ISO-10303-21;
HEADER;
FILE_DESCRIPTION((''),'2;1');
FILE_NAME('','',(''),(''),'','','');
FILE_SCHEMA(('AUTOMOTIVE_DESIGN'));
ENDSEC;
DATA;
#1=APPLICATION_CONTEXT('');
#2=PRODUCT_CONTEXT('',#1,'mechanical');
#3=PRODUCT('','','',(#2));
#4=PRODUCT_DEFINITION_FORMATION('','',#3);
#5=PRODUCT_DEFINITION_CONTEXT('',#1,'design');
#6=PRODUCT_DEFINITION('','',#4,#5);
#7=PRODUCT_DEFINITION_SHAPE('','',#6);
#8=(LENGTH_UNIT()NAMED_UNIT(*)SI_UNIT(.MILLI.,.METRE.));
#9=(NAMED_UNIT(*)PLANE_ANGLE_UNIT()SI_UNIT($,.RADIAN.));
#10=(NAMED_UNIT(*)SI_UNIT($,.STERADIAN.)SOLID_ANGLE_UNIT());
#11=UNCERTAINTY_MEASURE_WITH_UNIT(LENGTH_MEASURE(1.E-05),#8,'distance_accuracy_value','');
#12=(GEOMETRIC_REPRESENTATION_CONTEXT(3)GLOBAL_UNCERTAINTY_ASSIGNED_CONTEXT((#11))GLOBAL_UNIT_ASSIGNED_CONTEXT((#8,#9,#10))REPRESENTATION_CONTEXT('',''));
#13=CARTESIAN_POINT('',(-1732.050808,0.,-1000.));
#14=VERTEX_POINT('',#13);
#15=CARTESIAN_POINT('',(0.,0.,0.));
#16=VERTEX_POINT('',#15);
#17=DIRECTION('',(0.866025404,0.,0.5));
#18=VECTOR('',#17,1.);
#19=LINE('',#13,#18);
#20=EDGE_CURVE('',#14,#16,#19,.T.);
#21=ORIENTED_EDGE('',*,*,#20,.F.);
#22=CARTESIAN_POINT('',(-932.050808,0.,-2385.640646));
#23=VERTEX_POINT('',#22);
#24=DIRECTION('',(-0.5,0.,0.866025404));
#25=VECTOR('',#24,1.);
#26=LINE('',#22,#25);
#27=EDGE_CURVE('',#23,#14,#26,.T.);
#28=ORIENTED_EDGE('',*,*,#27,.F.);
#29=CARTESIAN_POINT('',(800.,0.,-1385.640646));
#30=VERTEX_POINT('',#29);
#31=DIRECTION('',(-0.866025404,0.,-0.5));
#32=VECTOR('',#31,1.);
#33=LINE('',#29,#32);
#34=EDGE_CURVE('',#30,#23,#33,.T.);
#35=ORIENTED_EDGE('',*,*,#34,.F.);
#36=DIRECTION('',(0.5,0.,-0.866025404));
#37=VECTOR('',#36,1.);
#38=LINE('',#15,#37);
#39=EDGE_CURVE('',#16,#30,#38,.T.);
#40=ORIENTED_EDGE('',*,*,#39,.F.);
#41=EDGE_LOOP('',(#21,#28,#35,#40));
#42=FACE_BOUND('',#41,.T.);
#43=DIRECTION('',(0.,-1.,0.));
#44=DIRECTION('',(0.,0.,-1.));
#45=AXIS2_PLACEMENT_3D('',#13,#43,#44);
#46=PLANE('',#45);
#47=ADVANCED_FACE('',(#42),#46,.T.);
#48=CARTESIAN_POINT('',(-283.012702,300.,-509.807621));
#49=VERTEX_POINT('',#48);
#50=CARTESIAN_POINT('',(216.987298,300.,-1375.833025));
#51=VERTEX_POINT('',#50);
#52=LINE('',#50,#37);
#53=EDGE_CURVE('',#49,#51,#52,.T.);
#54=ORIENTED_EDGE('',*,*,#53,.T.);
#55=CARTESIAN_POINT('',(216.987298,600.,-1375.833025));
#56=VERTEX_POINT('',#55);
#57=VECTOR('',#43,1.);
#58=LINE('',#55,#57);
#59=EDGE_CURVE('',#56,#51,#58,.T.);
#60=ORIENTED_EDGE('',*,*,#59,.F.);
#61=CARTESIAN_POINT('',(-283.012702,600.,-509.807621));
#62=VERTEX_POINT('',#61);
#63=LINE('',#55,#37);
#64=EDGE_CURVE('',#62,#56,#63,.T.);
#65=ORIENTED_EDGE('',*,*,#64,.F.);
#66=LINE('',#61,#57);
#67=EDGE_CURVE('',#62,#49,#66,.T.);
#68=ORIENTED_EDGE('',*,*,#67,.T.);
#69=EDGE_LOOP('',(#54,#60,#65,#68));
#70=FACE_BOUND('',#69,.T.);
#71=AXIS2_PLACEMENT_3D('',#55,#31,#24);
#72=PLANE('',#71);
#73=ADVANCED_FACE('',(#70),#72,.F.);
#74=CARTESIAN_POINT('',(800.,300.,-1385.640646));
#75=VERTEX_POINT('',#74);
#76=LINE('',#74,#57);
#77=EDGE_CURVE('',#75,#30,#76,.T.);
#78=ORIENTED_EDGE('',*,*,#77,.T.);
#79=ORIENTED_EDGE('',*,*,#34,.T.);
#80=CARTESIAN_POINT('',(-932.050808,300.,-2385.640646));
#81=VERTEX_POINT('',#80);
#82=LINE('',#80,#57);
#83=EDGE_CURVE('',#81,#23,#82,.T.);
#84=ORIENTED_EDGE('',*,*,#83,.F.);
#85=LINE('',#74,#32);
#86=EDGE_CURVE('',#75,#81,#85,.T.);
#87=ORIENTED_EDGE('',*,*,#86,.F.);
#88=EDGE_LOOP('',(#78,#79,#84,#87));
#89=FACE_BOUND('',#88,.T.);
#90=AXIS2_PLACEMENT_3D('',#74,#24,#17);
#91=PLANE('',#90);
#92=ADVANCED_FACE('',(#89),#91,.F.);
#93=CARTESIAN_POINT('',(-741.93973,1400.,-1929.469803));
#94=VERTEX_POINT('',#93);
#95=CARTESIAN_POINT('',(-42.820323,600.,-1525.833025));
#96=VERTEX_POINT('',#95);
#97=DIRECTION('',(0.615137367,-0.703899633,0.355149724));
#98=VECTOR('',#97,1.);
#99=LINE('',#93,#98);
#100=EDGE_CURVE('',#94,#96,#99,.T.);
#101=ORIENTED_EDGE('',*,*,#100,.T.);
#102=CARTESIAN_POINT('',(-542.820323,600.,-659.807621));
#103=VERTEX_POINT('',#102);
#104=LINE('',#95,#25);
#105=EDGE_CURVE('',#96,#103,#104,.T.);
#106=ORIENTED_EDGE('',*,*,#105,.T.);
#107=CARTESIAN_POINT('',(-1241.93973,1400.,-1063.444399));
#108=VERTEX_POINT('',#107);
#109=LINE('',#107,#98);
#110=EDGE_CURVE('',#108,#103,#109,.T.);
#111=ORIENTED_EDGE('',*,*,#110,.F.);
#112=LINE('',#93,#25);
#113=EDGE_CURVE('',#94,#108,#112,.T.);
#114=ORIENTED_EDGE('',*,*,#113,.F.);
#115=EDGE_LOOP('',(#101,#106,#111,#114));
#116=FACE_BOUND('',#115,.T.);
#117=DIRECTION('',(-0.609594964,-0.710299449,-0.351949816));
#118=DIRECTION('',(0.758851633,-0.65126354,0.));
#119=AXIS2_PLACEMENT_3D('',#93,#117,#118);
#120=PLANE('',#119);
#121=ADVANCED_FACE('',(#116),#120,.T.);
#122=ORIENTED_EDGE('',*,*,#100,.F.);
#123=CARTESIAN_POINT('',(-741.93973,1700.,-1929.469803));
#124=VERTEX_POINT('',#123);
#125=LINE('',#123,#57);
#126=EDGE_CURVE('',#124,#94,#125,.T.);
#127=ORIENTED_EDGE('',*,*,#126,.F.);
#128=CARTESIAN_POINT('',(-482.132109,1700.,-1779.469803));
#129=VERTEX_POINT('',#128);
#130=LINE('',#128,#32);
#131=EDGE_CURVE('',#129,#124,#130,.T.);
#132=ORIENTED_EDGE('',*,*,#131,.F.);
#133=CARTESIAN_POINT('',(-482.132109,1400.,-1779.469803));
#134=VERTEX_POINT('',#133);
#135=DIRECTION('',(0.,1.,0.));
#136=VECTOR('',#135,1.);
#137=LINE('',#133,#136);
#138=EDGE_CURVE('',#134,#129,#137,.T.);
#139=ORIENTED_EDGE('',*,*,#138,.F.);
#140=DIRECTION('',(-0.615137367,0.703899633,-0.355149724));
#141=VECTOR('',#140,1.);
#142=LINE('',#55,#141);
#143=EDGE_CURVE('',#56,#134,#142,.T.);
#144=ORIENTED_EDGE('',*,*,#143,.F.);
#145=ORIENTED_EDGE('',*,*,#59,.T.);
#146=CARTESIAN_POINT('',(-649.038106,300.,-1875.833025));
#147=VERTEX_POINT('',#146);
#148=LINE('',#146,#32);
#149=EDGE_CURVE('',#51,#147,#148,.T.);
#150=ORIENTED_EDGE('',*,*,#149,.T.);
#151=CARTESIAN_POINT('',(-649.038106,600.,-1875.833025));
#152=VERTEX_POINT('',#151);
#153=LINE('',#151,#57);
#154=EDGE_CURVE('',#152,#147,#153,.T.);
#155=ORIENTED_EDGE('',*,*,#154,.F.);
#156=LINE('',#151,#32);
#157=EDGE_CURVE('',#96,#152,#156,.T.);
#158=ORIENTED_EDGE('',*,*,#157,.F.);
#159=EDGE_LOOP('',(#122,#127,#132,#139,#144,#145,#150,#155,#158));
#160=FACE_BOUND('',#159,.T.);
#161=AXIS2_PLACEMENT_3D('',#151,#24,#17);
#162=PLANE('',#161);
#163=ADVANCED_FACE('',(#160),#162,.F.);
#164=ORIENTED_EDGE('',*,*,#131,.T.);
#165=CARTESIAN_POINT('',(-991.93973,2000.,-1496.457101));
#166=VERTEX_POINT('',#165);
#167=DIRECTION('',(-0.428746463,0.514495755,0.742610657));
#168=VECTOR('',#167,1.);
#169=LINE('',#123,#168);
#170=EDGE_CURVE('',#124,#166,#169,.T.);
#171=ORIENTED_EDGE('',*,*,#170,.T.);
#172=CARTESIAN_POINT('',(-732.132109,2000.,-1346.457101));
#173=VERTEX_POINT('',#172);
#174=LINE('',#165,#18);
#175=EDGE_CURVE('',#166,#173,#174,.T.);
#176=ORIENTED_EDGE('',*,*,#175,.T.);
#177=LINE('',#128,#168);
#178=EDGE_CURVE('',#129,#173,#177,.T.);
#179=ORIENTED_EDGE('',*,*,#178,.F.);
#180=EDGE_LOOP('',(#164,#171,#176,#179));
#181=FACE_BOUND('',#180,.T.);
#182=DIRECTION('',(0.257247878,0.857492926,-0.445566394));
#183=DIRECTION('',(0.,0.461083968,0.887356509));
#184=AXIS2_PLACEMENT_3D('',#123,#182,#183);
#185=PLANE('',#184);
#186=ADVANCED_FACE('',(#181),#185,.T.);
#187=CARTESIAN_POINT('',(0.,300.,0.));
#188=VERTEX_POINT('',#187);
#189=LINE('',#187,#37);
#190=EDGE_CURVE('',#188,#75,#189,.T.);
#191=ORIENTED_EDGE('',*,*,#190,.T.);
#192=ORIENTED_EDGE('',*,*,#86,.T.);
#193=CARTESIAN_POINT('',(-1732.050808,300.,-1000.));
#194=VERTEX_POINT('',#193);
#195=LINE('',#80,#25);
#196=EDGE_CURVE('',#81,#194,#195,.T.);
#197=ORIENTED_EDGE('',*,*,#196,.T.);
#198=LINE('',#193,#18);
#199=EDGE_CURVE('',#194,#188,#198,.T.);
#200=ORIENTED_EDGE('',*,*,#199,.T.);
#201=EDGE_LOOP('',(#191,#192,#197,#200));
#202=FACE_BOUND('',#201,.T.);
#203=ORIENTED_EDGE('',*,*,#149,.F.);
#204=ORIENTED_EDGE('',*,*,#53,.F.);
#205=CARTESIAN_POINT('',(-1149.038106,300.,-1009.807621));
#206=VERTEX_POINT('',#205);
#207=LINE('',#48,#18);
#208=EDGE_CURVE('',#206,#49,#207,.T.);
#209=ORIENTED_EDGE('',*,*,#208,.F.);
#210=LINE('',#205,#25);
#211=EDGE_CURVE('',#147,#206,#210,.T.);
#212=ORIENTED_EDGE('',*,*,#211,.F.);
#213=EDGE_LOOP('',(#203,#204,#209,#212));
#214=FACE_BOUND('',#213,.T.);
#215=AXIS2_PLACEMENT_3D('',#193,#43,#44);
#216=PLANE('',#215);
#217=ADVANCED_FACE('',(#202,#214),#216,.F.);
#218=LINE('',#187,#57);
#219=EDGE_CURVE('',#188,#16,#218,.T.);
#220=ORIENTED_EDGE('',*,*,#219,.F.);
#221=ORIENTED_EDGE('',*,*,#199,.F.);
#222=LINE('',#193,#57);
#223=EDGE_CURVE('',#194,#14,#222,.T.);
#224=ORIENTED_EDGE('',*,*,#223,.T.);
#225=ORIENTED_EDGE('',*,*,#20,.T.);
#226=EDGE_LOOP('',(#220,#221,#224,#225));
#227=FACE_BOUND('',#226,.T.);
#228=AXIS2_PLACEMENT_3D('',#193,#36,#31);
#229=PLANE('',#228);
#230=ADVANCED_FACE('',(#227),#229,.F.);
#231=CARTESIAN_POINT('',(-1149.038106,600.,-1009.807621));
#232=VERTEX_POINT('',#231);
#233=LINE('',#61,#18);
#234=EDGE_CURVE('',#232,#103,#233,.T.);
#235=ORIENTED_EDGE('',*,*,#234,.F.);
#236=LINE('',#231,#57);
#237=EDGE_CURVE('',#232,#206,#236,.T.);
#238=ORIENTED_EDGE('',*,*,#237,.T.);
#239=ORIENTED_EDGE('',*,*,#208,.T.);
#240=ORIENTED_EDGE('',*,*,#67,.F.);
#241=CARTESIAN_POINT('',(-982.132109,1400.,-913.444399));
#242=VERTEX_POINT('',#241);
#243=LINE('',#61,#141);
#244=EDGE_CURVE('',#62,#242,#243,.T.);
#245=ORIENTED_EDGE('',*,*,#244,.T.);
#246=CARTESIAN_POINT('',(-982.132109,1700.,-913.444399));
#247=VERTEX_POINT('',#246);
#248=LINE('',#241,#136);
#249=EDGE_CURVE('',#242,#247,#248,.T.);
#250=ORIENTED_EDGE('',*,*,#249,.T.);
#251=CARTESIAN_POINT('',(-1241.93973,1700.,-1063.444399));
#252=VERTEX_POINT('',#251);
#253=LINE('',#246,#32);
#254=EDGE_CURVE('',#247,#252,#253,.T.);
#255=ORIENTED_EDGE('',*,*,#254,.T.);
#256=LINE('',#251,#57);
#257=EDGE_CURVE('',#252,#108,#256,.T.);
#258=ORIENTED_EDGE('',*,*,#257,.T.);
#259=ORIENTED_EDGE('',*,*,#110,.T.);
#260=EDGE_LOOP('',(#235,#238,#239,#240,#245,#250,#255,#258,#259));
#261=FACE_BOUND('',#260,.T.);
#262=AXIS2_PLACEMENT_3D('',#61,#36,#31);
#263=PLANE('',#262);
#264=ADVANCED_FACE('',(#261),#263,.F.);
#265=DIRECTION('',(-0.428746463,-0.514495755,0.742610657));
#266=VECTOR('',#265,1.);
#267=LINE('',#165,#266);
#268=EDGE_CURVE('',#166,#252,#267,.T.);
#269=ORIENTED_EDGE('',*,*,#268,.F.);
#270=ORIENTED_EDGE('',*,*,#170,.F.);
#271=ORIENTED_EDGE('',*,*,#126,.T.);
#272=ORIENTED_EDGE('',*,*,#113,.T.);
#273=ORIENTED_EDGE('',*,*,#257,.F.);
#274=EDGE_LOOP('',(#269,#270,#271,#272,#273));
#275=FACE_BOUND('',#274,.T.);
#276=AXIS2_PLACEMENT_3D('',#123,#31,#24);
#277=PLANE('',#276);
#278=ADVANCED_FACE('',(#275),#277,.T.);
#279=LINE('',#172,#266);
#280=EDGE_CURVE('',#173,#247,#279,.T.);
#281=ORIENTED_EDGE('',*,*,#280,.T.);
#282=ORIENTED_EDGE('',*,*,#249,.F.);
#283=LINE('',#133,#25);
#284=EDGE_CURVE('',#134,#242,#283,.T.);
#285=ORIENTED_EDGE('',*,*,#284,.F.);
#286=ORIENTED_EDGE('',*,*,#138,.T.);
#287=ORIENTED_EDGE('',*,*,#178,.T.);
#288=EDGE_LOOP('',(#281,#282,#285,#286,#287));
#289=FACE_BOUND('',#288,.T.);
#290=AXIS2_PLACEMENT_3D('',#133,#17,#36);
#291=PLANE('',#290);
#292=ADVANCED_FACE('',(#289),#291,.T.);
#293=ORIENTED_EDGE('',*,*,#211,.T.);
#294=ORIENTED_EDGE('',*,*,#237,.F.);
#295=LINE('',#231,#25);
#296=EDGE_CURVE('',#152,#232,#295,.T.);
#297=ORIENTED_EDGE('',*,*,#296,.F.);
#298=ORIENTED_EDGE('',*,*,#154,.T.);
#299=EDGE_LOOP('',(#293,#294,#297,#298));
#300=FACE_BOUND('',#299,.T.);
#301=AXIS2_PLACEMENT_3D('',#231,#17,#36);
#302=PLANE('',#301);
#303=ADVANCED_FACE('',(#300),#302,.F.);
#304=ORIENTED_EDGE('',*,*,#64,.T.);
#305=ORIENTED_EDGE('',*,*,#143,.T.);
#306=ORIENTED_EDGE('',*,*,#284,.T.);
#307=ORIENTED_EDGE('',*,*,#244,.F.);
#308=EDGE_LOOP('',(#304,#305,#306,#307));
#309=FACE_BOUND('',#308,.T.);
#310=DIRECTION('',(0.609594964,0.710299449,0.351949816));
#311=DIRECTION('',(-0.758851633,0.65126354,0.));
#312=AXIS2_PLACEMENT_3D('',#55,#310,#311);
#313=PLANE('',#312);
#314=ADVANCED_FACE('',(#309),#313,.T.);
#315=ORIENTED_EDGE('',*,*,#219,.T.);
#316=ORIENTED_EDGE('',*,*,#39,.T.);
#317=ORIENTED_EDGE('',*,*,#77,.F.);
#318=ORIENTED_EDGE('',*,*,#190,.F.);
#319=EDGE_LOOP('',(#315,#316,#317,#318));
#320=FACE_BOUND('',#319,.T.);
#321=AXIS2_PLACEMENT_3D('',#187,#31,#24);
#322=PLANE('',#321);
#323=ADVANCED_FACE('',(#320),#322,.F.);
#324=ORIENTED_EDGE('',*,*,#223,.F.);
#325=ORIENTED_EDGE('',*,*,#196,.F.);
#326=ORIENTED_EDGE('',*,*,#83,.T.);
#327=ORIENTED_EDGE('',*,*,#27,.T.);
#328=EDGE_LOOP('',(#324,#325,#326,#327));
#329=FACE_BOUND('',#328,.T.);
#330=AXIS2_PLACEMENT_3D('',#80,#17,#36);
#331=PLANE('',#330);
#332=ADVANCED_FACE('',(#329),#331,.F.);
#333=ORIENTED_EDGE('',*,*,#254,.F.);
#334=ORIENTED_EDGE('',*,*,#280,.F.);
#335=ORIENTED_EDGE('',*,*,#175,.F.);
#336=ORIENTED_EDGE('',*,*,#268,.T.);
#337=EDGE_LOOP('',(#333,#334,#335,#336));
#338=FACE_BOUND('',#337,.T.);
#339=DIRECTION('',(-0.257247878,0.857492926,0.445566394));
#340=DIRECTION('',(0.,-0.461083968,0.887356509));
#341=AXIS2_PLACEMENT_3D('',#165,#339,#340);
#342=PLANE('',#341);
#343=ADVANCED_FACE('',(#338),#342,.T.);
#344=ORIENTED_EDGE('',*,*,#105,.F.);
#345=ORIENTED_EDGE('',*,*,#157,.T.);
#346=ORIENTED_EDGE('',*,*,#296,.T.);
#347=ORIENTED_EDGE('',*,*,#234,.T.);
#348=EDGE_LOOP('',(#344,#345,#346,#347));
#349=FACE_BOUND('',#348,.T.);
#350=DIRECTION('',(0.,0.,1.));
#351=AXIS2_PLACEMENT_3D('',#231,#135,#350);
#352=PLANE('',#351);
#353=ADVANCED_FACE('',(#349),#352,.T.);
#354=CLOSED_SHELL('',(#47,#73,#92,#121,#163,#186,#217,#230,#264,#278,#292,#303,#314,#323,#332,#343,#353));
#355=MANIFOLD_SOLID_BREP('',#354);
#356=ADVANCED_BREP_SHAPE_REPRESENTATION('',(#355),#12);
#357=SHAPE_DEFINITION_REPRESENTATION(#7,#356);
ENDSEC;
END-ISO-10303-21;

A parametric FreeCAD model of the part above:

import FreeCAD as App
import Part
import Sketcher

V = App.Vector
Q = App.Units.Quantity


def add_polygon(sketch, points):
    """Adds a closed chain of lines whose ends are joined by coincident constraints."""
    first, n = sketch.GeometryCount, len(points)
    for a, b in zip(points, points[1:] + points[:1]):
        sketch.addGeometry(Part.LineSegment(App.Vector(*a, 0), App.Vector(*b, 0)), False)
    for i in range(n):
        sketch.addConstraint(Sketcher.Constraint("Coincident", first + i, 2, first + (i + 1) % n, 1))

doc = App.newDocument("Part")
params = doc.addObject("Spreadsheet::Sheet", "Params")
for row, (alias, value) in enumerate([
    ("sketch1_length", "1600 mm"),
    ("sketch1_length2", "2000 mm"),
    ("pad1_length", "300 mm"),
    ("sketch2_length", "1000 mm"),
    ("pad2_length", "300 mm"),
    ("sketch3_width", "300 mm"),
    ("pad3_length", "1000 mm"),
    ("sketch4_width", "1000 mm"),
    ("pad4_length", "300 mm"),
], start=1):
    params.set(f"A{row}", alias)
    params.set(f"B{row}", "=" + value)
    params.setAlias(f"B{row}", alias)

body = doc.addObject("PartDesign::Body", "Body")

# Sketch on XZ plane
sketch1 = doc.addObject("Sketcher::SketchObject", "Sketch")
body.addObject(sketch1)
sketch1.AttachmentSupport = (doc.XZ_Plane, [""])
sketch1.MapMode = "FlatFace"
add_polygon(sketch1, [(0, 0), (800, -1386), (-932, -2386), (-1732, -1000)])  # lines 0-3
sketch1.addConstraint([
    Sketcher.Constraint("Coincident", 3, 2, -1, 1),
    Sketcher.Constraint("Perpendicular", 0, 1),
    Sketcher.Constraint("Perpendicular", 1, 2),
    Sketcher.Constraint("Perpendicular", 2, 3),
    Sketcher.Constraint("Angle", 0, Q("-60 deg")),
    Sketcher.Constraint("Distance", 0, 1600.0),
    Sketcher.Constraint("Distance", 1, 2000.0),
])
sketch1.setExpression("Constraints[9]", "Params.sketch1_length")
sketch1.setExpression("Constraints[10]", "Params.sketch1_length2")
pad1 = doc.addObject("PartDesign::Pad", "Pad")
body.addObject(pad1)
pad1.Profile = sketch1
pad1.setExpression("Length", "Params.pad1_length")
pad1.Reversed = True

# Sketch on XZ plane
sketch2 = doc.addObject("Sketcher::SketchObject", "Sketch001")
body.addObject(sketch2)
sketch2.AttachmentSupport = (doc.XZ_Plane, [""])
sketch2.MapMode = "FlatFace"
sketch2.AttachmentOffset = App.Placement(V(0, 0, -300), App.Rotation())
add_polygon(sketch2, [(217, -1376), (-649, -1876), (-1149, -1010), (-283, -510)])  # lines 0-3
sketch2.addConstraint([
    Sketcher.Constraint("Perpendicular", 0, 1),
    Sketcher.Constraint("Perpendicular", 1, 2),
    Sketcher.Constraint("Perpendicular", 2, 3),
    Sketcher.Constraint("Equal", 0, 1),
    Sketcher.Constraint("Angle", 0, Q("-150 deg")),
    Sketcher.Constraint("Distance", 0, 1000.0),
    Sketcher.Constraint("DistanceX", 2, 2, -1, 1, 283.012702),
    Sketcher.Constraint("DistanceY", 1, 2, -1, 1, 1009.807621),
])
sketch2.setExpression("Constraints[9]", "Params.sketch2_length")
pad2 = doc.addObject("PartDesign::Pad", "Pad001")
body.addObject(pad2)
pad2.Profile = sketch2
pad2.setExpression("Length", "Params.pad2_length")
pad2.Reversed = True

# Sketch on an angled plane
sketch3 = doc.addObject("Sketcher::SketchObject", "Sketch002")
body.addObject(sketch3)
sketch3.Placement = App.Placement(V(150, 0, -259.807621), App.Rotation(V(0.866025404, 0, 0.5), V(0, 1, 0), V(-0.5, 0, 0.866025404), "ZXY"))
add_polygon(sketch3, [(-500, 600), (-1307, 1400), (-1307, 1700), (-1607, 1700), (-1607, 1400), (-800, 600)])  # lines 0-5
sketch3.addConstraint([
    Sketcher.Constraint("Vertical", 1),
    Sketcher.Constraint("Horizontal", 2),
    Sketcher.Constraint("Vertical", 3),
    Sketcher.Constraint("Horizontal", 5),
    Sketcher.Constraint("Parallel", 0, 4),
    Sketcher.Constraint("Horizontal", 0, 2, 3, 2),
    Sketcher.Constraint("Equal", 5, 1),
    Sketcher.Constraint("DistanceX", 2, 2, 2, 1, 300.0),
    Sketcher.Constraint("DistanceY", -1, 1, 0, 2, 1400.000001),
    Sketcher.Constraint("DistanceX", 4, 2, -1, 1, 800.0),
    Sketcher.Constraint("DistanceY", -1, 1, 4, 2, 600.0),
    Sketcher.Constraint("Distance", 0, 1136.525668),
])
sketch3.setExpression("Constraints[13]", "Params.sketch3_width")
pad3 = doc.addObject("PartDesign::Pad", "Pad002")
body.addObject(pad3)
pad3.Profile = sketch3
pad3.setExpression("Length", "Params.pad3_length")
pad3.Reversed = True

# Sketch on an angled plane
sketch4 = doc.addObject("Sketcher::SketchObject", "Sketch003")
body.addObject(sketch4)
sketch4.Placement = App.Placement(V(-1132.132109, 0, -653.636778), App.Rotation(V(0.5, 0, -0.866025404), V(0, 1, 0), V(0.866025404, 0, 0.5), "ZXY"))
add_polygon(sketch4, [(300, 1700), (1300, 1700), (800, 2000)])  # lines 0-2
sketch4.addConstraint([
    Sketcher.Constraint("Horizontal", 0),
    Sketcher.Constraint("Equal", 1, 2),
    Sketcher.Constraint("DistanceX", 0, 1, 0, 2, 1000.0),
    Sketcher.Constraint("DistanceX", -1, 1, 0, 2, 1300.0),
    Sketcher.Constraint("DistanceY", -1, 1, 0, 2, 1700.000001),
    Sketcher.Constraint("DistanceY", -1, 1, 1, 2, 2000.000001),
])
sketch4.setExpression("Constraints[5]", "Params.sketch4_width")
pad4 = doc.addObject("PartDesign::Pad", "Pad003")
body.addObject(pad4)
pad4.Profile = sketch4
pad4.setExpression("Length", "Params.pad4_length")
pad4.Reversed = True

doc.recompute()
